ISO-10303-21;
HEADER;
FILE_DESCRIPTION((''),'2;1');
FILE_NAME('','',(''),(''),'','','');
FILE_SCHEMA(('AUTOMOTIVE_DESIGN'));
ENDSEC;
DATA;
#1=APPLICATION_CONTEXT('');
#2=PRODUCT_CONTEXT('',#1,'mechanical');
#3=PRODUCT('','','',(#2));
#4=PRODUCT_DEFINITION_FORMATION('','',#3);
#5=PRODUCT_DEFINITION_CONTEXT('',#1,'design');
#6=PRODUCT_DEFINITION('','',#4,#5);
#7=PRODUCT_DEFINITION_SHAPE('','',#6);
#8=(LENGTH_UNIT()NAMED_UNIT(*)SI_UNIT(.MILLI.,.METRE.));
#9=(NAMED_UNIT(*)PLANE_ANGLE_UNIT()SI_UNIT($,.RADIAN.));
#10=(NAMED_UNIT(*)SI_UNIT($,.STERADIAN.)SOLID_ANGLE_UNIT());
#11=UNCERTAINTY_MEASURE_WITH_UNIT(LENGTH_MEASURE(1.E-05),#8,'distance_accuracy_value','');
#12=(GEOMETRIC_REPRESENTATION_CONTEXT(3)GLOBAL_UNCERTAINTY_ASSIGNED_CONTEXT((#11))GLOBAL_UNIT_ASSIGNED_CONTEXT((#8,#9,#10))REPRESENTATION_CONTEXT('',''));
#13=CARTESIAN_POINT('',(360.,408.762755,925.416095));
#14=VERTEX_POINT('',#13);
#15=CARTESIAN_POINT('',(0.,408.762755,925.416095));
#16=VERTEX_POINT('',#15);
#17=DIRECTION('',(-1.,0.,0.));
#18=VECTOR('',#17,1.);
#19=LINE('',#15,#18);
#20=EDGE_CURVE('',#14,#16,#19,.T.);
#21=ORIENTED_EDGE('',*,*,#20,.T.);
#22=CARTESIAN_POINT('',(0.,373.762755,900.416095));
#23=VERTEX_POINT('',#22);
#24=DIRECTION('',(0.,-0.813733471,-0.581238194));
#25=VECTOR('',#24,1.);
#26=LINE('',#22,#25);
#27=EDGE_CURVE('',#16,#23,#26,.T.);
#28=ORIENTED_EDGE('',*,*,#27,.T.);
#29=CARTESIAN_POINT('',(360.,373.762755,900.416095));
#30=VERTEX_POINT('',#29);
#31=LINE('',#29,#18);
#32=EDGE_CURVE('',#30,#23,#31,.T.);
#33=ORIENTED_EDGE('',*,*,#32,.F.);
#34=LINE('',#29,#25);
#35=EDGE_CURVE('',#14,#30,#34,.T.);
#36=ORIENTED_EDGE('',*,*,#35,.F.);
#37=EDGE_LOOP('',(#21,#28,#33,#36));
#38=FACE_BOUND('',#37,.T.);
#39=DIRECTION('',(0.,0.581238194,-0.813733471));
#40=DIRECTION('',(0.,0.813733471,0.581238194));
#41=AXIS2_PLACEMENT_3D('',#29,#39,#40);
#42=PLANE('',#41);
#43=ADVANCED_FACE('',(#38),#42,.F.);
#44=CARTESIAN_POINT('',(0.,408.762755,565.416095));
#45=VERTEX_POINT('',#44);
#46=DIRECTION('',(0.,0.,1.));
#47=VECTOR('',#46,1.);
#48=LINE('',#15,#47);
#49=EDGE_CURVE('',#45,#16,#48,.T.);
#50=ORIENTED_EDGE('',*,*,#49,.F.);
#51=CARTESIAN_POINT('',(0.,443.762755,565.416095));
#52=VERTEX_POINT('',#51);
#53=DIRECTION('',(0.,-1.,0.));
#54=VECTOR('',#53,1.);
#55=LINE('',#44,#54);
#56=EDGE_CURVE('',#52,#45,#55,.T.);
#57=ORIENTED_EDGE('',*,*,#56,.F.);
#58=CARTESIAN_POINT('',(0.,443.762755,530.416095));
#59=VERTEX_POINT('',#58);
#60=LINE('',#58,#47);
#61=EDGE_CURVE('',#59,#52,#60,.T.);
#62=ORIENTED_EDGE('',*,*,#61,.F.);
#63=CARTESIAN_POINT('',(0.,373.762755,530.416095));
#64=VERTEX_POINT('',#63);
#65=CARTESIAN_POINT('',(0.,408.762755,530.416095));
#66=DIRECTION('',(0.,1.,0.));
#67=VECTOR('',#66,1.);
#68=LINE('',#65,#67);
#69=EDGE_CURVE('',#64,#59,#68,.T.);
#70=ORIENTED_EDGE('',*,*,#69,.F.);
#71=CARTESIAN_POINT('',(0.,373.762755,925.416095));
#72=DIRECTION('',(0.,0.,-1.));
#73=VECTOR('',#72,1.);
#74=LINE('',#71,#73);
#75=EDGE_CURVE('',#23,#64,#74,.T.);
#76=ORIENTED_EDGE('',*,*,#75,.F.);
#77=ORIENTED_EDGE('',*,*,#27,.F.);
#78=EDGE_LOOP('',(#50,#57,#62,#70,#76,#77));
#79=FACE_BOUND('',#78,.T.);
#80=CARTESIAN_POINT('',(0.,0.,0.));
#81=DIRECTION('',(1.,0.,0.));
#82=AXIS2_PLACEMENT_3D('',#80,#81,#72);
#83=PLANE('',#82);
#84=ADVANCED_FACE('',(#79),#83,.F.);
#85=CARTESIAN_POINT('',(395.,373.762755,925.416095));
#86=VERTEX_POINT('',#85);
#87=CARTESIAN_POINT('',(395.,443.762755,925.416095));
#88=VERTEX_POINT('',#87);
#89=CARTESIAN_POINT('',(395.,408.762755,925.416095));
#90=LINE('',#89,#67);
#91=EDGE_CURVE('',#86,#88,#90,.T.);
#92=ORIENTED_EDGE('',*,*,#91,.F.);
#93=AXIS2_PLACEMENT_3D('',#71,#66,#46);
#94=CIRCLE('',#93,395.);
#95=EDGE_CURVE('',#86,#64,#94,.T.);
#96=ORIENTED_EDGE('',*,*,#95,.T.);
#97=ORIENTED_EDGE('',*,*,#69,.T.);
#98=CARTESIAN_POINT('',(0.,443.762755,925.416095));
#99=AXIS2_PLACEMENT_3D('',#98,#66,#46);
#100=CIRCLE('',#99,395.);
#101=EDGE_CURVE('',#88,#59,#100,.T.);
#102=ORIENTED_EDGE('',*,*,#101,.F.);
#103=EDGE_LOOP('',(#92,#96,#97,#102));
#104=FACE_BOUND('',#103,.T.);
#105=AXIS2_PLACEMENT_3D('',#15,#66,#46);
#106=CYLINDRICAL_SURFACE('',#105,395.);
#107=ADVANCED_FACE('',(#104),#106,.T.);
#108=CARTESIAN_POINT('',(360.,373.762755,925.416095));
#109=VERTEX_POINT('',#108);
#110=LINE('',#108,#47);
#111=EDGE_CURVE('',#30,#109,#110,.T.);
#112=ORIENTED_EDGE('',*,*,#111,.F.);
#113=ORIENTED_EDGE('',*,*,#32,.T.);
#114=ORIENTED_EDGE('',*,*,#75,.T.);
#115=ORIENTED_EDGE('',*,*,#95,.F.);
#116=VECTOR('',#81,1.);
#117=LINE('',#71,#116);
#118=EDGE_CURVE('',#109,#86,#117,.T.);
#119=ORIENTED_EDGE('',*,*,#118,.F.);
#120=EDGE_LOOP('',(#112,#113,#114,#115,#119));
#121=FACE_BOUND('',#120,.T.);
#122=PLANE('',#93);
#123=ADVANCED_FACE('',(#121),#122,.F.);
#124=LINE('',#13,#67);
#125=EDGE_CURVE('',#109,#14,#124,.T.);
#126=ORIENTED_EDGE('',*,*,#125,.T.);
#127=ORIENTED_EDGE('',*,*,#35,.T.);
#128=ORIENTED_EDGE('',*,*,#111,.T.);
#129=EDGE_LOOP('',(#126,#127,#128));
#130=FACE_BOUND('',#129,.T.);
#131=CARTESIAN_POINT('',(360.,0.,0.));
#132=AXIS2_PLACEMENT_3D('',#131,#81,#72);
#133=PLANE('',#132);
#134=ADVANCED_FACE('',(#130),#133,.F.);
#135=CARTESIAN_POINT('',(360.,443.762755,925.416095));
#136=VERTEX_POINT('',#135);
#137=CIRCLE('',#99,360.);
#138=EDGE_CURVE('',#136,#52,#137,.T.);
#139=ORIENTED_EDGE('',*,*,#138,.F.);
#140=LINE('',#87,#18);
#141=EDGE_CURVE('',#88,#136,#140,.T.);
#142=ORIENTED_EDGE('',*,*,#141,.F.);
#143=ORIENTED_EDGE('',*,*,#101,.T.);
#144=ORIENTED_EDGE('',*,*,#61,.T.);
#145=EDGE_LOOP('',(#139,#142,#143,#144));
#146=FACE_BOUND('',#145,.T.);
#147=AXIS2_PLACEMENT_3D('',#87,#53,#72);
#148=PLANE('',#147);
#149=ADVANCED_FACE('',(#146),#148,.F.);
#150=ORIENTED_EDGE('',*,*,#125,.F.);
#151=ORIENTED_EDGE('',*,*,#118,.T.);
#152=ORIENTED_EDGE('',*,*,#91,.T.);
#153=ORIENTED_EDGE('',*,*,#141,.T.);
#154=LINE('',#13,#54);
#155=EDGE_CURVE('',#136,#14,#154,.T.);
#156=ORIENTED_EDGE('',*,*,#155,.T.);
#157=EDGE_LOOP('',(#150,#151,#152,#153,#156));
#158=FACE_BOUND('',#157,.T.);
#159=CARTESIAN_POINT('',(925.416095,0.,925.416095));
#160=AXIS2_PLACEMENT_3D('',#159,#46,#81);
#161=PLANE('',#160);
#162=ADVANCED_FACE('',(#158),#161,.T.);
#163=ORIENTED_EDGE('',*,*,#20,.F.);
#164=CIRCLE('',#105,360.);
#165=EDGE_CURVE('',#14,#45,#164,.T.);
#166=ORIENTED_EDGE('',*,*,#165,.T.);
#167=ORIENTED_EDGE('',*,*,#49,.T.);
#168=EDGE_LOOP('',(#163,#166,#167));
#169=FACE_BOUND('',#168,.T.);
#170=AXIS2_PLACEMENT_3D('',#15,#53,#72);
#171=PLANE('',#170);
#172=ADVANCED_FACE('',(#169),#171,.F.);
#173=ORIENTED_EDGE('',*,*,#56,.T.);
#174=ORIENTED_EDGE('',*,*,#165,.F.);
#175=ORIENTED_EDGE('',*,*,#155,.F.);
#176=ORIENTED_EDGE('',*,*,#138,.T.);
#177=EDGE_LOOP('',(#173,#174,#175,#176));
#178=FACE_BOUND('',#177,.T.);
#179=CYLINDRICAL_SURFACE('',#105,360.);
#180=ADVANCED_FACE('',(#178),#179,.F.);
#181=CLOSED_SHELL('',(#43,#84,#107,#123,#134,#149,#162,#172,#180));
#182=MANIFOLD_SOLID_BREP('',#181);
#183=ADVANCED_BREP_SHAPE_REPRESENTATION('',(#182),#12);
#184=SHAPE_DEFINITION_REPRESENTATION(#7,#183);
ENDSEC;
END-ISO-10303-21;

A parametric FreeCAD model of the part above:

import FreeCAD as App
import Part
import Sketcher

V = App.Vector
Q = App.Units.Quantity

doc = App.newDocument("Part")
body = doc.addObject("PartDesign::Body", "Body")

# Sketch on YZ plane
sketch1 = body.newObject("Sketcher::SketchObject", "Sketch")
sketch1.AttachmentSupport = (doc.getObject("YZ_Plane"), [""])
sketch1.MapMode = "FlatFace"
sketch1.addGeometry([
    Part.LineSegment(V(408.762755, 925.416095, 0), V(373.762755, 925.416095, 0)),
    Part.LineSegment(V(373.762755, 925.416095, 0), V(373.762755, 530.416095, 0)),
    Part.LineSegment(V(373.762755, 530.416095, 0), V(408.762755, 530.416095, 0)),
    Part.LineSegment(V(408.762755, 530.416095, 0), V(408.762755, 925.416095, 0)),
], False)
sketch1.addGeometry(Part.LineSegment(V(408.762755, 925.416095, 0), V(373.762755, 925.416095, 0)), True)  # axis
sketch1.addConstraint([
    Sketcher.Constraint("Coincident", 0, 2, 1, 1),
    Sketcher.Constraint("Coincident", 1, 2, 2, 1),
    Sketcher.Constraint("Coincident", 2, 2, 3, 1),
    Sketcher.Constraint("Coincident", 3, 2, 0, 1),
    Sketcher.Constraint("Horizontal", 0),
    Sketcher.Constraint("Vertical", 1),
    Sketcher.Constraint("Horizontal", 2),
    Sketcher.Constraint("Vertical", 3),
    Sketcher.Constraint("Horizontal", 4),
    Sketcher.Constraint("Coincident", 4, 1, 3, 2),
    Sketcher.Constraint("Vertical", 1, 2, 4, 2),
    Sketcher.Constraint("DistanceX", 0, 2, 0, 1, Q("35 mm")),
    Sketcher.Constraint("DistanceY", 1, 2, 1, 1, Q("395 mm")),
    Sketcher.Constraint("DistanceX", -1, 1, 0, 2, Q("373.762755 mm")),
    Sketcher.Constraint("DistanceY", -1, 1, 0, 2, Q("925.416095 mm")),
])
revolution = body.newObject("PartDesign::Revolution", "Revolution")
revolution.Profile = sketch1
revolution.ReferenceAxis = (sketch1, ["Axis0"])
revolution.Angle = 90

# Sketch on YZ plane
sketch2 = body.newObject("Sketcher::SketchObject", "Sketch001")
sketch2.AttachmentSupport = (doc.getObject("YZ_Plane"), [""])
sketch2.MapMode = "FlatFace"
sketch2.addGeometry([
    Part.LineSegment(V(443.762755, 565.416095, 0), V(408.762755, 565.416095, 0)),
    Part.LineSegment(V(408.762755, 565.416095, 0), V(408.762755, 530.416095, 0)),
    Part.LineSegment(V(408.762755, 530.416095, 0), V(443.762755, 530.416095, 0)),
    Part.LineSegment(V(443.762755, 530.416095, 0), V(443.762755, 565.416095, 0)),
], False)
sketch2.addGeometry(Part.LineSegment(V(443.762755, 925.416095, 0), V(408.762755, 925.416095, 0)), True)  # axis
sketch2.addConstraint([
    Sketcher.Constraint("Coincident", 0, 2, 1, 1),
    Sketcher.Constraint("Coincident", 1, 2, 2, 1),
    Sketcher.Constraint("Coincident", 2, 2, 3, 1),
    Sketcher.Constraint("Coincident", 3, 2, 0, 1),
    Sketcher.Constraint("Horizontal", 0),
    Sketcher.Constraint("Vertical", 1),
    Sketcher.Constraint("Horizontal", 2),
    Sketcher.Constraint("Vertical", 3),
    Sketcher.Constraint("Horizontal", 4),
    Sketcher.Constraint("Vertical", 3, 2, 4, 1),
    Sketcher.Constraint("Vertical", 1, 2, 4, 2),
    Sketcher.Constraint("Equal", 4, 1),
    Sketcher.Constraint("DistanceX", 0, 2, 0, 1, Q("35 mm")),
    Sketcher.Constraint("DistanceY", 3, 2, 4, 1, Q("360 mm")),
    Sketcher.Constraint("DistanceX", -1, 1, 0, 2, Q("408.762755 mm")),
    Sketcher.Constraint("DistanceY", -1, 1, 0, 2, Q("565.416095 mm")),
])
revolution2 = body.newObject("PartDesign::Revolution", "Revolution001")
revolution2.Profile = sketch2
revolution2.ReferenceAxis = (sketch2, ["Axis0"])
revolution2.Angle = 90

# Sketch on YZ plane
sketch3 = body.newObject("Sketcher::SketchObject", "Sketch002")
sketch3.AttachmentSupport = (doc.getObject("YZ_Plane"), [""])
sketch3.MapMode = "FlatFace"
sketch3.addGeometry([
    Part.LineSegment(V(373.762755, 900.416095, 0), V(373.762755, 925.416095, 0)),
    Part.LineSegment(V(373.762755, 925.416095, 0), V(408.762755, 925.416095, 0)),
    Part.LineSegment(V(408.762755, 925.416095, 0), V(373.762755, 900.416095, 0)),
], False)
sketch3.addConstraint([
    Sketcher.Constraint("Coincident", 0, 2, 1, 1),
    Sketcher.Constraint("Coincident", 1, 2, 2, 1),
    Sketcher.Constraint("Coincident", 2, 2, 0, 1),
    Sketcher.Constraint("Vertical", 0),
    Sketcher.Constraint("Horizontal", 1),
    Sketcher.Constraint("DistanceX", 1, 1, 1, 2, Q("35 mm")),
    Sketcher.Constraint("DistanceY", 0, 1, 0, 2, Q("25 mm")),
    Sketcher.Constraint("DistanceX", -1, 1, 0, 2, Q("373.762755 mm")),
    Sketcher.Constraint("DistanceY", -1, 1, 0, 2, Q("925.416095 mm")),
])
pocket1 = body.newObject("PartDesign::Pocket", "Pocket")
pocket1.Profile = sketch3
pocket1.Length = 360
pocket1.Reversed = True

doc.recompute()
